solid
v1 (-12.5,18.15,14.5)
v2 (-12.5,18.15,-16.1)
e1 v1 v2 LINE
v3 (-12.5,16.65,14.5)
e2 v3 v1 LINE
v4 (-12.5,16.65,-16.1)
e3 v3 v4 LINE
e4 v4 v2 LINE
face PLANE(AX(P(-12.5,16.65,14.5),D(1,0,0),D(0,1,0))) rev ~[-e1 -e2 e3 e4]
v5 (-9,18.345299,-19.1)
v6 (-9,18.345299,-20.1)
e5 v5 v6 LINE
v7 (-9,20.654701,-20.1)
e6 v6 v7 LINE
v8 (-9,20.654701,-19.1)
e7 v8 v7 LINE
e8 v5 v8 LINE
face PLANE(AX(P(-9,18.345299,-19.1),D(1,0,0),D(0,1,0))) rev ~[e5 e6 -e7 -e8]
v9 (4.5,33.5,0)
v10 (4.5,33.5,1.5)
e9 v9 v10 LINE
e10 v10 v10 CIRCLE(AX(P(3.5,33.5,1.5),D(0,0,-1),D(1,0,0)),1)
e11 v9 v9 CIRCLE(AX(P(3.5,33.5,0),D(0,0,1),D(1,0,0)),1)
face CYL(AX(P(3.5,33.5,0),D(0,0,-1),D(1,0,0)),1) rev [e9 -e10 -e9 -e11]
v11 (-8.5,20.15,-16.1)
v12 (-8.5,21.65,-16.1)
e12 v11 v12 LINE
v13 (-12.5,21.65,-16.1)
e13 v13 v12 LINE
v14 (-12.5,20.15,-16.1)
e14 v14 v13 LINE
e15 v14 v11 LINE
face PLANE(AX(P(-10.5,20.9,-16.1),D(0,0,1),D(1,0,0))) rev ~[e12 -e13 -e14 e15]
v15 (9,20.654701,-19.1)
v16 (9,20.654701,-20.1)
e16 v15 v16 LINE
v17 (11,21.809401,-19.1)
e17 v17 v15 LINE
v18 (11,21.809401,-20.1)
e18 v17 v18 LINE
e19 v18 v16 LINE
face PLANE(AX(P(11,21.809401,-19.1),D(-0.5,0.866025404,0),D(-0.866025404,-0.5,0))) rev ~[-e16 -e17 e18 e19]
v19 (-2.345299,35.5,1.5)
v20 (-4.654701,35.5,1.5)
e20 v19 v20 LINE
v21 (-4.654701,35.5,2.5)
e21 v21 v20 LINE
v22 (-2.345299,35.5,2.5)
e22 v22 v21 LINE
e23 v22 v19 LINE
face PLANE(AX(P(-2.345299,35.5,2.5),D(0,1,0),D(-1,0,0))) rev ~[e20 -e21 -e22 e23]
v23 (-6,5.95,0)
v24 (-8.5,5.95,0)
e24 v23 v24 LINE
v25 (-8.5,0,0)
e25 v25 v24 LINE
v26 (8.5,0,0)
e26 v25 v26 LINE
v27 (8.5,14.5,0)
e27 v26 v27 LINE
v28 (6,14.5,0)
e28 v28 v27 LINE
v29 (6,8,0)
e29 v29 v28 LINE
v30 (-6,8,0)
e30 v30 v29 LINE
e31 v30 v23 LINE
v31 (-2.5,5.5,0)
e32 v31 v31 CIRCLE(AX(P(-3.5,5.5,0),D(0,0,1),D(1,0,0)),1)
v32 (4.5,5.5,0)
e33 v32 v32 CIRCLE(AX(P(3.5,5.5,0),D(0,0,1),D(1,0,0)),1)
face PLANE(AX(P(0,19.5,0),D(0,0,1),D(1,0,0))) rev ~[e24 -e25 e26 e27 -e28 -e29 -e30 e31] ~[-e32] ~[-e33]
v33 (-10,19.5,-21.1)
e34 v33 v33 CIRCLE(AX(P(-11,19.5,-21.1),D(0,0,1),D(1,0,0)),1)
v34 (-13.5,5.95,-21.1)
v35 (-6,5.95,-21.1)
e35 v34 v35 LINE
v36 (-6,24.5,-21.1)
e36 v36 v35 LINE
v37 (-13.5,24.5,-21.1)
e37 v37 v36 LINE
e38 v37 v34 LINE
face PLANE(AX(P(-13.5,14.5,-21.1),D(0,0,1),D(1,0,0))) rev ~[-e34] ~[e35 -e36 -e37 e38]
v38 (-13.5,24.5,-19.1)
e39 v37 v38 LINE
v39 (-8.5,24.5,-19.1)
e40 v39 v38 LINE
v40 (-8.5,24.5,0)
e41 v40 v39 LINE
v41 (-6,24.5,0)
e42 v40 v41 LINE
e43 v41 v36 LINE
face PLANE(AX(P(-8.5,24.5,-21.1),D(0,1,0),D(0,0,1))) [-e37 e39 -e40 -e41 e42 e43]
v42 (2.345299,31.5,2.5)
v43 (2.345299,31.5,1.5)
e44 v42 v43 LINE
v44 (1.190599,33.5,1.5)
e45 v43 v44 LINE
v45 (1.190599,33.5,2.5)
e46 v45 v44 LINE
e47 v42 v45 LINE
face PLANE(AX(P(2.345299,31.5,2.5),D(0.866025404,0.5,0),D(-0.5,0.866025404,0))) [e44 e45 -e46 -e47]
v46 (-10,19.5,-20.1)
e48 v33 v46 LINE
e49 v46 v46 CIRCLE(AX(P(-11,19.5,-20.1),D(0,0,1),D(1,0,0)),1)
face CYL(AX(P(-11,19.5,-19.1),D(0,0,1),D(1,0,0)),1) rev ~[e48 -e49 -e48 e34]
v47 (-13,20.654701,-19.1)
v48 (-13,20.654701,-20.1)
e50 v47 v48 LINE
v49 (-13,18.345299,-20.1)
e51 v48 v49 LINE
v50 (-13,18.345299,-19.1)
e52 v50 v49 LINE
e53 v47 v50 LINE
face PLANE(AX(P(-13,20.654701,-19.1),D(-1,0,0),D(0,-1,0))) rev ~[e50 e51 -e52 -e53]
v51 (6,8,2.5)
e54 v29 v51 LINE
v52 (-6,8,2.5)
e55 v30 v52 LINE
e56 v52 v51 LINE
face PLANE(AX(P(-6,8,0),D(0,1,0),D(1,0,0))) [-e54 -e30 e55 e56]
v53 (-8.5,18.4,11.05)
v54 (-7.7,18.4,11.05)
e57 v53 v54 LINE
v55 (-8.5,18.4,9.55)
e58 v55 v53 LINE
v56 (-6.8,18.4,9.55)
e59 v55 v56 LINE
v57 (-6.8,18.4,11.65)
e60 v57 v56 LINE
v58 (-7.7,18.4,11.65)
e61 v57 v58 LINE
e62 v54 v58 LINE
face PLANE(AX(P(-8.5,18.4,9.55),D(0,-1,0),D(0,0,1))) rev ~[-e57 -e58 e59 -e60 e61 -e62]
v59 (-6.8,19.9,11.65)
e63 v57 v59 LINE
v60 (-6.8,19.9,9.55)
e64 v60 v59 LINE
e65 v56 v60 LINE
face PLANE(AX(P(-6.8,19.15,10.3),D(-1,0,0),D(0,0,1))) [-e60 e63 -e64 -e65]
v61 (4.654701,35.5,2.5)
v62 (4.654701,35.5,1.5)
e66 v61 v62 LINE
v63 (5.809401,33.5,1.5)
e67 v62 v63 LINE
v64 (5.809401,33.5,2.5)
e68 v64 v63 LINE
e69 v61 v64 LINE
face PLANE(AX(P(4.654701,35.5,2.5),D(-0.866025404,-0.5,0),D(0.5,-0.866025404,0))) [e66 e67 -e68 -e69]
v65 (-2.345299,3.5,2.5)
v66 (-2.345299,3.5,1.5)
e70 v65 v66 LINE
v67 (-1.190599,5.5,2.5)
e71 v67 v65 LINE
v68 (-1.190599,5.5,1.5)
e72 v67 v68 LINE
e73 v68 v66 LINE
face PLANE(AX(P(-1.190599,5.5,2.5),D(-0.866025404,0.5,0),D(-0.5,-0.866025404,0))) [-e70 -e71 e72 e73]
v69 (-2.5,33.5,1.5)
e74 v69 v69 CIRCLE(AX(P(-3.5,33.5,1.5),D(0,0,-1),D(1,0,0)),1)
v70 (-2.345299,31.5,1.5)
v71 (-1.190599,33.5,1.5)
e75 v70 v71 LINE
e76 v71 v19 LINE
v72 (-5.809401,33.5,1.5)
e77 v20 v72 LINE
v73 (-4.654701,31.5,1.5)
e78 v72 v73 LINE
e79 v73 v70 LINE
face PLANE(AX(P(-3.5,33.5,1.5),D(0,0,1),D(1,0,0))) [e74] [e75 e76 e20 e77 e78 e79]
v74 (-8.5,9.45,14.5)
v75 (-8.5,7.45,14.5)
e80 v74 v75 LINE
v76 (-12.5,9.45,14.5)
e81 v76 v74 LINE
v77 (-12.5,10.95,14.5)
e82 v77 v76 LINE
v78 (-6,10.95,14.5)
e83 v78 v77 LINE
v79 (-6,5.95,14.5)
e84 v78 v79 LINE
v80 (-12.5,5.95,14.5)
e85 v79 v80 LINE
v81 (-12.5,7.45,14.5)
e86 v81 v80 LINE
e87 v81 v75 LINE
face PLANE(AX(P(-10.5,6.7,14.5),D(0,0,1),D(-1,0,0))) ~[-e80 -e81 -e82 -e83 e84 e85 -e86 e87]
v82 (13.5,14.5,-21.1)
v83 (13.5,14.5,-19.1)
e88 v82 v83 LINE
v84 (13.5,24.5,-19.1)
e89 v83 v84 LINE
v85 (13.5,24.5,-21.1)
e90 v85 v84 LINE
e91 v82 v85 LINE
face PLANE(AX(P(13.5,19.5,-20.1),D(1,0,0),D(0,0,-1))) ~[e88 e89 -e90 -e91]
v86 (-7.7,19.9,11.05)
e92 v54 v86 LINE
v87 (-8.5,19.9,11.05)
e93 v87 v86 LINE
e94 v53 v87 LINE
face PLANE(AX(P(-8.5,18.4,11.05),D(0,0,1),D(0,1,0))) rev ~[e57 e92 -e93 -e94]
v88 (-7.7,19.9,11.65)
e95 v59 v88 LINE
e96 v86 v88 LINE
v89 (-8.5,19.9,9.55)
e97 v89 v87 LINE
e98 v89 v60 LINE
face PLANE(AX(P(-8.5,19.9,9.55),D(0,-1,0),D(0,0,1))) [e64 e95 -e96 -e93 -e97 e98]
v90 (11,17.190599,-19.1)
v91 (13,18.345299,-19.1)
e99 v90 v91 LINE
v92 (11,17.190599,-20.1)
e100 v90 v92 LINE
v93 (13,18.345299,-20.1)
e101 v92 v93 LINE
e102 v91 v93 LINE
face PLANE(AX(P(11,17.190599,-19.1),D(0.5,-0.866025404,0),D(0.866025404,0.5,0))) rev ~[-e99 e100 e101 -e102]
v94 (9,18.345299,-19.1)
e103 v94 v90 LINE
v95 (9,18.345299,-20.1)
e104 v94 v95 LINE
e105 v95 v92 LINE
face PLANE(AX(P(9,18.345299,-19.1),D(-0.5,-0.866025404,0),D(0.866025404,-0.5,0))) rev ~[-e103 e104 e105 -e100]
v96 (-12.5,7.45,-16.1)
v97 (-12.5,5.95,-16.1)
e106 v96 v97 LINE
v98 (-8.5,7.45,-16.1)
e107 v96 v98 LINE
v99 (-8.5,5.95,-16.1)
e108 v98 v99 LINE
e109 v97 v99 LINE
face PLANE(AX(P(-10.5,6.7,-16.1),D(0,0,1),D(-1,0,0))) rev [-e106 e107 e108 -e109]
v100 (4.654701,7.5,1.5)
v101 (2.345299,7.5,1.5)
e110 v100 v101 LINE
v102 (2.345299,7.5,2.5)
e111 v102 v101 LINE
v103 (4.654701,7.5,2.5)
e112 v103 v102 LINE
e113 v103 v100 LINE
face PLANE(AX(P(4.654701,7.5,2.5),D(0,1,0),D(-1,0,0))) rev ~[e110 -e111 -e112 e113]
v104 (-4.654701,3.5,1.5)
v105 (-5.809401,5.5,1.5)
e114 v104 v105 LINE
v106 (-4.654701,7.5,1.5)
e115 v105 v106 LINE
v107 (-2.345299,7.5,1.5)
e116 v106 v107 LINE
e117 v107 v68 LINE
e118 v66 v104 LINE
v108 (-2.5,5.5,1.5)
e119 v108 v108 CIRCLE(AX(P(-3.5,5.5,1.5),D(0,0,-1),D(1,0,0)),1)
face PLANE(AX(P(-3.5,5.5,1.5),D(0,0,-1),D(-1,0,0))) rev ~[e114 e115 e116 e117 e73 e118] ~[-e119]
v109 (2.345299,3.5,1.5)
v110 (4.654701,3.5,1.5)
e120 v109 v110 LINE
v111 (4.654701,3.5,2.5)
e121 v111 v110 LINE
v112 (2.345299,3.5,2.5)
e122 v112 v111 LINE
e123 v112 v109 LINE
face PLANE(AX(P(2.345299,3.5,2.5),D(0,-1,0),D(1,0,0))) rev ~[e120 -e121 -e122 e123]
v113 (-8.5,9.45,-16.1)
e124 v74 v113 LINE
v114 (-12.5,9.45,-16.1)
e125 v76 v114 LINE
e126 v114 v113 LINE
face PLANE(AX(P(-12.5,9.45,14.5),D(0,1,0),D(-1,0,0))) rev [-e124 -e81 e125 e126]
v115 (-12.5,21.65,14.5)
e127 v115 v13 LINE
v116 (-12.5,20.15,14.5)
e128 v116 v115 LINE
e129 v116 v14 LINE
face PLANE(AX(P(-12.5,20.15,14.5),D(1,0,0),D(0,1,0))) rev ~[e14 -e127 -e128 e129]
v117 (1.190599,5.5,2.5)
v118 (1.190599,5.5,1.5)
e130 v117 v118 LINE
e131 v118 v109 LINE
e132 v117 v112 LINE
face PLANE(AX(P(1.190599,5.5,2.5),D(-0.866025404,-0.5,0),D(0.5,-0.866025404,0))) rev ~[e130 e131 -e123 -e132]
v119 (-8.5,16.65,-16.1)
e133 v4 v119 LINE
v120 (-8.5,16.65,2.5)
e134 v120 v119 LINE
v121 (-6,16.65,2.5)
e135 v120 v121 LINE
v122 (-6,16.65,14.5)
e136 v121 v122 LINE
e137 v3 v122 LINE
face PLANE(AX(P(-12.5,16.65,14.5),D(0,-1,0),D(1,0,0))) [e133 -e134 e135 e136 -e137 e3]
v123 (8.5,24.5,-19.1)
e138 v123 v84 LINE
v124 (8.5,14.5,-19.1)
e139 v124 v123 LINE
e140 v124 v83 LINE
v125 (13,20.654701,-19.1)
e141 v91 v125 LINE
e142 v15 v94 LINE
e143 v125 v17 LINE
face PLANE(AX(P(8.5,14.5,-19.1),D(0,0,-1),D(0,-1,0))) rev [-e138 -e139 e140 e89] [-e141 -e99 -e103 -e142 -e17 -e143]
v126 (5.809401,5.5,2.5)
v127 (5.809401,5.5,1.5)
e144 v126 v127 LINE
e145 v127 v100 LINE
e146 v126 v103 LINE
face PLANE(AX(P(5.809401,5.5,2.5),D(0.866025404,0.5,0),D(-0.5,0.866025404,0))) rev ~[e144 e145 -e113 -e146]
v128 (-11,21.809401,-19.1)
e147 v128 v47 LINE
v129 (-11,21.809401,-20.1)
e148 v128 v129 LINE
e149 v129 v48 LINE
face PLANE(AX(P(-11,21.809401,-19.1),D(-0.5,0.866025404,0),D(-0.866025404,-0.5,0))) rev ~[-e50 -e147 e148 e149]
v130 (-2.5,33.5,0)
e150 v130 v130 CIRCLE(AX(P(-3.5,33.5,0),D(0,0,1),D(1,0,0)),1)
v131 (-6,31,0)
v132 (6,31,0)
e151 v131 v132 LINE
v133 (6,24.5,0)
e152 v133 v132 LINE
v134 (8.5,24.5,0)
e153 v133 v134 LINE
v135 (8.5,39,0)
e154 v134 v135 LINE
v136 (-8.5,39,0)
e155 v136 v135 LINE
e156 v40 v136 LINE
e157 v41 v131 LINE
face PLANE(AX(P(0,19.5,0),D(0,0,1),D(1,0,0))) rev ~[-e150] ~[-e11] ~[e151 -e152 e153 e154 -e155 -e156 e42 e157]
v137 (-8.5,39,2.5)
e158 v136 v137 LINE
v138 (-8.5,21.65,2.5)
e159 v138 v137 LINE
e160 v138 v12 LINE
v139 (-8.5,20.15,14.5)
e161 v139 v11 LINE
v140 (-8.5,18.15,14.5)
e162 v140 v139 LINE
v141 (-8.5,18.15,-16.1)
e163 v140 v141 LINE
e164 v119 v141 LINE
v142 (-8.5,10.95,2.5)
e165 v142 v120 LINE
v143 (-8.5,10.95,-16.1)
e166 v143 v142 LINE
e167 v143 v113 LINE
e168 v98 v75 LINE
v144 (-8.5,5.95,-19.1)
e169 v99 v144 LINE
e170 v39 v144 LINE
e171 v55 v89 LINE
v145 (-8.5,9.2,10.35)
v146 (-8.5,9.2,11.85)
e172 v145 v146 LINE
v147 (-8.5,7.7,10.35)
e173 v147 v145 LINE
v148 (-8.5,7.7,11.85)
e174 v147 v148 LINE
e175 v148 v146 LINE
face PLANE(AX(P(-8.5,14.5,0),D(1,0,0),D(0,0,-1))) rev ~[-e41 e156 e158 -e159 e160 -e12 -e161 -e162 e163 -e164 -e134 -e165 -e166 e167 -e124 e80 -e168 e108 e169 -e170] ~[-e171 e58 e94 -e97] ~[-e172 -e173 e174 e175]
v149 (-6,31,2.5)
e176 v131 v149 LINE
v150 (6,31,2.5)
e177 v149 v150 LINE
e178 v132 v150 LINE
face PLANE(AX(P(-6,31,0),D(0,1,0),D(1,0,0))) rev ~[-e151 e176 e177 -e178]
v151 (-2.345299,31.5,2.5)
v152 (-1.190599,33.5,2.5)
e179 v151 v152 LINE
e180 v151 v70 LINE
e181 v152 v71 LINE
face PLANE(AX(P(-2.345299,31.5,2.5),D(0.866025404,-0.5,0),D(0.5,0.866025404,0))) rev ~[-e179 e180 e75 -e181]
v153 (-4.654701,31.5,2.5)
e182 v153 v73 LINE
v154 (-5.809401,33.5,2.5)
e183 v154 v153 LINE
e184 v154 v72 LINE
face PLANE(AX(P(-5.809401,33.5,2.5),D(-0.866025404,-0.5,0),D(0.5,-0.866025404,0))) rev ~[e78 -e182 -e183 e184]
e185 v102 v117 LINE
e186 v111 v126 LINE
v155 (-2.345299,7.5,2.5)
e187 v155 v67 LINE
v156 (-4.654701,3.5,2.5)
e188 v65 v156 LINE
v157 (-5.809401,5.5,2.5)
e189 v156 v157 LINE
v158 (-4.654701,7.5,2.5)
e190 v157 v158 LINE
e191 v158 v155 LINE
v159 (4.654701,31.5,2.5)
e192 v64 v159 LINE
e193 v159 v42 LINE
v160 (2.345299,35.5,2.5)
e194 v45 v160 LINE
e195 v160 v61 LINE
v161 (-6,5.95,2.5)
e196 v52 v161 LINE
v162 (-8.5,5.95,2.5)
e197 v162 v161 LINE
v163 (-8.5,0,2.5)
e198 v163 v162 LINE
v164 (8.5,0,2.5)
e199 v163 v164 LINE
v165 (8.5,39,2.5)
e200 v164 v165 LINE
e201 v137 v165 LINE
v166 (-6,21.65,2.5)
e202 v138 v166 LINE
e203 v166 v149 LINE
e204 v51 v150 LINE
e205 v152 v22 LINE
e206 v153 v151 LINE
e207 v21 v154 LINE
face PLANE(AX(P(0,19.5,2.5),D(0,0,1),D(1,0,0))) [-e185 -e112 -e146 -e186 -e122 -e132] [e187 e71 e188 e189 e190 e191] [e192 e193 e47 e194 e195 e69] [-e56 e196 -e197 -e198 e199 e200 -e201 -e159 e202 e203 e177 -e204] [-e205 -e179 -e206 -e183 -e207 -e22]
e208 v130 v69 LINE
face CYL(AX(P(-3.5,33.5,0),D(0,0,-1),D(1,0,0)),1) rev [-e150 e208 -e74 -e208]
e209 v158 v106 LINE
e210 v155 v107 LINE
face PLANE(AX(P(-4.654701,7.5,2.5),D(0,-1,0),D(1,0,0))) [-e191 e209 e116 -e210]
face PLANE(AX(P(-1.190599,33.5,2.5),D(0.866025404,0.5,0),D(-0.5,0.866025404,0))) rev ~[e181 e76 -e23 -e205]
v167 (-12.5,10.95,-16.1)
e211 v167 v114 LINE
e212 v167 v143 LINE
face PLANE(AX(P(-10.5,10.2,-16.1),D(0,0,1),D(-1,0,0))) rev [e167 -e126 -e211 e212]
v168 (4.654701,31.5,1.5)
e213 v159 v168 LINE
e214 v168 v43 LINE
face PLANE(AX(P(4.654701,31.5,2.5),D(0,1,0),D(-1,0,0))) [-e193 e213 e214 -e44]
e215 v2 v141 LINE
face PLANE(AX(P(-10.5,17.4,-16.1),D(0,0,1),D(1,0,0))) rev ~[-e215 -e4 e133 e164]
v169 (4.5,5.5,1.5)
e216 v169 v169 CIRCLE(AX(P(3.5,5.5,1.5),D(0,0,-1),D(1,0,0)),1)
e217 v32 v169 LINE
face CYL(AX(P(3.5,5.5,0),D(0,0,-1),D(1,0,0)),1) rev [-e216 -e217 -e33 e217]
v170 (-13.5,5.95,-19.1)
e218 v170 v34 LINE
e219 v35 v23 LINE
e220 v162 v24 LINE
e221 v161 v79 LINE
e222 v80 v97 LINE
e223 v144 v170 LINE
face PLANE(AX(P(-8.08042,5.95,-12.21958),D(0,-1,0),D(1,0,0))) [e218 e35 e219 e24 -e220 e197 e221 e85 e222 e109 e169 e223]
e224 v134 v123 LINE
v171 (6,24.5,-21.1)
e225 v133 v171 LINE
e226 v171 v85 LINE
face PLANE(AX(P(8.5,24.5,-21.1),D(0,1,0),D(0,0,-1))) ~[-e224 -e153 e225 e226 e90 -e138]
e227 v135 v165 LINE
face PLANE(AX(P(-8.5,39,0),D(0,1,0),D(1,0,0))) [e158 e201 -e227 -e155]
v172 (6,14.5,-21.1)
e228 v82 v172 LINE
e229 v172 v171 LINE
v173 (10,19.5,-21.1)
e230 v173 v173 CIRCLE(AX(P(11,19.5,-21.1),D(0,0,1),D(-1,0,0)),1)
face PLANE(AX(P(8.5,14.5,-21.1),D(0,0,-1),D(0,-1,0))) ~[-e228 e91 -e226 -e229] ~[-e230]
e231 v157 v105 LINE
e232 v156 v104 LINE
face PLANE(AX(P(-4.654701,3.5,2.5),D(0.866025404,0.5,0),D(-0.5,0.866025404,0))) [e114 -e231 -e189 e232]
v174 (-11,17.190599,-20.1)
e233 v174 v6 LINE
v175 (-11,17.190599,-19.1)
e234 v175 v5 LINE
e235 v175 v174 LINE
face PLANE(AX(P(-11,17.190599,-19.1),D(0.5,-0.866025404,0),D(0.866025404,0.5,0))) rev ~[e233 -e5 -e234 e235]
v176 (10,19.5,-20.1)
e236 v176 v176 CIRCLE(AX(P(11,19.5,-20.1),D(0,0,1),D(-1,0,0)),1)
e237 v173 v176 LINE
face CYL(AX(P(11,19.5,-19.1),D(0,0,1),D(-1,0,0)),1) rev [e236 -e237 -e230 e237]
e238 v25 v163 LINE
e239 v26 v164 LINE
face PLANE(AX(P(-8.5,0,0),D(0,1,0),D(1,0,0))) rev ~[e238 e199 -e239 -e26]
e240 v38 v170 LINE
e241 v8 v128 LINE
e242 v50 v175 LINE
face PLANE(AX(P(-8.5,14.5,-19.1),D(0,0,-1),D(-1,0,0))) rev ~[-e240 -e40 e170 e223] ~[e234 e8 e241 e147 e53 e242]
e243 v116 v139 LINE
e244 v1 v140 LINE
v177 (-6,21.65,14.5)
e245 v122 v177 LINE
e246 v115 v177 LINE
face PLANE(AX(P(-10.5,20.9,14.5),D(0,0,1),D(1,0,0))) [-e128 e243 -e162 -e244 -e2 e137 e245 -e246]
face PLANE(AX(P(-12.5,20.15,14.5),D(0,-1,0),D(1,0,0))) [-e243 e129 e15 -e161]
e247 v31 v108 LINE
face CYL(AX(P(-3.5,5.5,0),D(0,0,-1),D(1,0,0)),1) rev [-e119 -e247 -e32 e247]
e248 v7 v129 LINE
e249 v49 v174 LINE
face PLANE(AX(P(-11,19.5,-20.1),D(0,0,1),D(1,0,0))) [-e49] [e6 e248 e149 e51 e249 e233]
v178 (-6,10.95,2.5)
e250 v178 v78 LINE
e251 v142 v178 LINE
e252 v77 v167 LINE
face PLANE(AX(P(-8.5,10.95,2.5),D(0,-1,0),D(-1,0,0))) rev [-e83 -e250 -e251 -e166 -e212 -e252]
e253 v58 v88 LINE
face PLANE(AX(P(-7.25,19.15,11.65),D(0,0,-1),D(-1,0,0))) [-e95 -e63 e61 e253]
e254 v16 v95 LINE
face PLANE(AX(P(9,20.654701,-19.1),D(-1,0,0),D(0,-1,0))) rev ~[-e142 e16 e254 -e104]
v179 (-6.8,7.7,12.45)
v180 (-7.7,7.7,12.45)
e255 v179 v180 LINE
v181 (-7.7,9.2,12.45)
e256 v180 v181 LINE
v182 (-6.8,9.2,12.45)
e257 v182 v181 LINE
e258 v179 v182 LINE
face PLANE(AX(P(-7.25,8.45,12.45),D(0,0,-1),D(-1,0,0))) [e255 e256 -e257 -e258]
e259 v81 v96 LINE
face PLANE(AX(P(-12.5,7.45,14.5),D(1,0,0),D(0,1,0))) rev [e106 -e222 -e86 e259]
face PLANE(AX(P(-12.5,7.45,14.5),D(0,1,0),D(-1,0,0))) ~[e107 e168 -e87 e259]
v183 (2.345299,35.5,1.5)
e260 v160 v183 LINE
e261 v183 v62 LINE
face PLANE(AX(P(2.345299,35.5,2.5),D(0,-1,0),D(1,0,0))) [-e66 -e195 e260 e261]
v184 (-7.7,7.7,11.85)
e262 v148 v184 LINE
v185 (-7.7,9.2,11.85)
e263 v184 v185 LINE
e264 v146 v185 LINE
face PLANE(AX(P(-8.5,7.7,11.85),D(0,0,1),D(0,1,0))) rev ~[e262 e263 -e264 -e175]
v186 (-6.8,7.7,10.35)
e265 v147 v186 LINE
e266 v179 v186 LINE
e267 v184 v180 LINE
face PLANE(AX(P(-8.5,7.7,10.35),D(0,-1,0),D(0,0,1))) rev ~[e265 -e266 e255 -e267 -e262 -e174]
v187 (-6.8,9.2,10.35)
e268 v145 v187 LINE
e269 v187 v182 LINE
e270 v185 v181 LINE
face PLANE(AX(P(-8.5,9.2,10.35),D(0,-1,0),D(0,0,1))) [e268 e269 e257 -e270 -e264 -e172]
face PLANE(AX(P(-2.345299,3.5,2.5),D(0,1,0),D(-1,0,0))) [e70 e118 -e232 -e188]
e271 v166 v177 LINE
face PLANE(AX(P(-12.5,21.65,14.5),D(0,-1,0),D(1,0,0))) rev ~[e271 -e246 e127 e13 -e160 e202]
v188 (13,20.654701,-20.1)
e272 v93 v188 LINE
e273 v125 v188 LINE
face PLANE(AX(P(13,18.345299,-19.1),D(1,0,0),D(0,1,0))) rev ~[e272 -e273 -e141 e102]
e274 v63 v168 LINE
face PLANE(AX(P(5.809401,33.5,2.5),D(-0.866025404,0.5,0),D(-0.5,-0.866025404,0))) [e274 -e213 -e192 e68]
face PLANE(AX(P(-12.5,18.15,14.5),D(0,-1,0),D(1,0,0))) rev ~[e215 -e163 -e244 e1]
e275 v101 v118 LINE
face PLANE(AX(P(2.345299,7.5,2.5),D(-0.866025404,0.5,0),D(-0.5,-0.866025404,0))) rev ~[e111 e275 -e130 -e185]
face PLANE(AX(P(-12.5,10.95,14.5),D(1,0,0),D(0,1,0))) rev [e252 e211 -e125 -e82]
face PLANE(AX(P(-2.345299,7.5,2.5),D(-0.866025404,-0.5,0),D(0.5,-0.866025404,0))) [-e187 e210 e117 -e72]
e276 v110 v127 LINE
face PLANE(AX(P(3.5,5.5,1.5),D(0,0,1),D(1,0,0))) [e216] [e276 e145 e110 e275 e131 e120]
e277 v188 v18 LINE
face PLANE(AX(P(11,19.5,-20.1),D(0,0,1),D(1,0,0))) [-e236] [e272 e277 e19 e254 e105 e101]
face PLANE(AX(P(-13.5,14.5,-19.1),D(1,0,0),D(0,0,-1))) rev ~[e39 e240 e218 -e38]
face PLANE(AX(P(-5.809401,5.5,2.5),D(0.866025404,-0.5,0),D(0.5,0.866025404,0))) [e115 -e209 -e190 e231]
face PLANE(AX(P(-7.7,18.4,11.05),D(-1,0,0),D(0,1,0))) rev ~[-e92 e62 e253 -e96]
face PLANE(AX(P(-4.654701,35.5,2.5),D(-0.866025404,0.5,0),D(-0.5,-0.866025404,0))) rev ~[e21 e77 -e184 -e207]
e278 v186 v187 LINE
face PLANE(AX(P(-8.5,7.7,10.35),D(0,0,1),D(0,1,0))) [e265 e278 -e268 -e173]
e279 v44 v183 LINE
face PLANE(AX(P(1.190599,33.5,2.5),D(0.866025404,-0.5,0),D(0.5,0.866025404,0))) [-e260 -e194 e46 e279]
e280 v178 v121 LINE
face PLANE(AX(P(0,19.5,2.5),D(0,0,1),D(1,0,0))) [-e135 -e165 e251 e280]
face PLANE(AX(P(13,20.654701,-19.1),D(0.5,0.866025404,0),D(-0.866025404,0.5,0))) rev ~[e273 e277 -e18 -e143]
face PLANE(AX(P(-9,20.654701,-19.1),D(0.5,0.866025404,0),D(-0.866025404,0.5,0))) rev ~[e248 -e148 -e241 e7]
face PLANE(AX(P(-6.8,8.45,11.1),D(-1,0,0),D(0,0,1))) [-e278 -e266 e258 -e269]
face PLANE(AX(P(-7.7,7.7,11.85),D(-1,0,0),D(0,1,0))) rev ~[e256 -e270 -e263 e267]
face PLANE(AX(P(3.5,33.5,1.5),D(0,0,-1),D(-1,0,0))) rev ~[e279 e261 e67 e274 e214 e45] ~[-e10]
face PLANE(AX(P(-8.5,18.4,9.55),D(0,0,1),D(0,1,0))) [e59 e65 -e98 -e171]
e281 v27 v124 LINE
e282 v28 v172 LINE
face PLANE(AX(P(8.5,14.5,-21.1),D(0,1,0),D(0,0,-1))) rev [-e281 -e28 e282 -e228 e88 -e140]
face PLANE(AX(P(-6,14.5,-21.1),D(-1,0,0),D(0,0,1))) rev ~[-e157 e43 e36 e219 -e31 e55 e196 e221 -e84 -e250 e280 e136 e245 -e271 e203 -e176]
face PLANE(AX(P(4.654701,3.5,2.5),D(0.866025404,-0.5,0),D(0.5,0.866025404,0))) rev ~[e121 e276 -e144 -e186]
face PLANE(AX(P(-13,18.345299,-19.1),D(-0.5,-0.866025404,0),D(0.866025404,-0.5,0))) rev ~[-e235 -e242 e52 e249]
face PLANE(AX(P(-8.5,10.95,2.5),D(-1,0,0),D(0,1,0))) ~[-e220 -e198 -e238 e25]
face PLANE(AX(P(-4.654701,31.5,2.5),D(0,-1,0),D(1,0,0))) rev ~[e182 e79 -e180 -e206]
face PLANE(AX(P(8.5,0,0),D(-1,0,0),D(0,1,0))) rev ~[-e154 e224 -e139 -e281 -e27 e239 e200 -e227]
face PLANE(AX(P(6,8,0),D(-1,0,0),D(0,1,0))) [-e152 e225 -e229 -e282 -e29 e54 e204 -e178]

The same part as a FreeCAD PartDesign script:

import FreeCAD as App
import Part
import Sketcher
from FreeCAD import Vector
Q = App.Units.Quantity

doc = App.newDocument("Part")
body = doc.addObject("PartDesign::Body", "Body")

sketch1 = body.newObject("Sketcher::SketchObject", "Sketch")
sketch1.AttachmentSupport = (doc.getObject("XY_Plane"), [""])
sketch1.MapMode = "FlatFace"
sketch1.addGeometry([
    Part.LineSegment(Vector(-8.5, 39, 0), Vector(-8.5, 0, 0)),
    Part.LineSegment(Vector(-8.5, 0, 0), Vector(8.5, 0, 0)),
    Part.LineSegment(Vector(8.5, 0, 0), Vector(8.5, 39, 0)),
    Part.LineSegment(Vector(8.5, 39, 0), Vector(-8.5, 39, 0)),
    Part.Circle(Vector(-3.5, 5.5, 0), Vector(0, 0, 1), 1),
    Part.Circle(Vector(3.5, 5.5, 0), Vector(0, 0, 1), 1),
    Part.Circle(Vector(-3.5, 33.5, 0), Vector(0, 0, 1), 1),
    Part.LineSegment(Vector(6, 8, 0), Vector(-6, 8, 0)),
    Part.LineSegment(Vector(-6, 8, 0), Vector(-6, 31, 0)),
    Part.LineSegment(Vector(-6, 31, 0), Vector(6, 31, 0)),
    Part.LineSegment(Vector(6, 31, 0), Vector(6, 8, 0)),
    Part.Circle(Vector(3.5, 33.5, 0), Vector(0, 0, 1), 1),
], False)
sketch1.addConstraint([
    Sketcher.Constraint("Coincident", 0, 2, 1, 1),
    Sketcher.Constraint("Coincident", 1, 2, 2, 1),
    Sketcher.Constraint("Coincident", 2, 2, 3, 1),
    Sketcher.Constraint("Coincident", 3, 2, 0, 1),
    Sketcher.Constraint("Coincident", 7, 2, 8, 1),
    Sketcher.Constraint("Coincident", 8, 2, 9, 1),
    Sketcher.Constraint("Coincident", 9, 2, 10, 1),
    Sketcher.Constraint("Coincident", 10, 2, 7, 1),
    Sketcher.Constraint("Vertical", 0),
    Sketcher.Constraint("Horizontal", 1),
    Sketcher.Constraint("Vertical", 2),
    Sketcher.Constraint("Horizontal", 3),
    Sketcher.Constraint("Horizontal", 7),
    Sketcher.Constraint("Vertical", 8),
    Sketcher.Constraint("Horizontal", 9),
    Sketcher.Constraint("Vertical", 10),
    Sketcher.Constraint("Equal", 4, 5),
    Sketcher.Constraint("Equal", 5, 6),
    Sketcher.Constraint("Equal", 6, 11),
    Sketcher.Constraint("Symmetric", 0, 2, 1, 2, -1, 1),
    Sketcher.Constraint("Symmetric", 4, 3, 5, 3, -2),
    Sketcher.Constraint("Symmetric", 6, 3, 11, 3, -2),
    Sketcher.Constraint("Vertical", 4, 3, 6, 3),
    Sketcher.Constraint("Diameter", 4, Q("2 mm")),
    Sketcher.Constraint("DistanceX", 1, 1, 1, 2, Q("17 mm")),
    Sketcher.Constraint("DistanceX", 7, 2, 7, 1, Q("12 mm")),
    Sketcher.Constraint("DistanceY", 0, 2, 0, 1, Q("39 mm")),
    Sketcher.Constraint("DistanceY", 8, 1, 8, 2, Q("23 mm")),
    Sketcher.Constraint("DistanceX", 7, 2, -1, 1, Q("6 mm")),
    Sketcher.Constraint("DistanceY", -1, 1, 7, 2, Q("8 mm")),
    Sketcher.Constraint("DistanceX", 4, 3, 5, 3, Q("7 mm")),
    Sketcher.Constraint("DistanceY", 4, 3, 6, 3, Q("28 mm")),
    Sketcher.Constraint("DistanceY", -1, 1, 4, 3, Q("5.5 mm")),
])
pad1 = body.newObject("PartDesign::Pad", "Pad")
pad1.Profile = sketch1
pad1.Length = 2.5

sketch2 = body.newObject("Sketcher::SketchObject", "Sketch001")
sketch2.AttachmentSupport = (doc.getObject("XY_Plane"), [""])
sketch2.MapMode = "FlatFace"
sketch2.addGeometry([
    Part.LineSegment(Vector(-8.5, 24.5, 0), Vector(-8.5, 14.5, 0)),
    Part.LineSegment(Vector(-8.5, 14.5, 0), Vector(-6, 14.5, 0)),
    Part.LineSegment(Vector(-6, 14.5, 0), Vector(-6, 24.5, 0)),
    Part.LineSegment(Vector(-6, 24.5, 0), Vector(-8.5, 24.5, 0)),
    Part.LineSegment(Vector(6, 24.5, 0), Vector(6, 14.5, 0)),
    Part.LineSegment(Vector(6, 14.5, 0), Vector(8.5, 14.5, 0)),
    Part.LineSegment(Vector(8.5, 14.5, 0), Vector(8.5, 24.5, 0)),
    Part.LineSegment(Vector(8.5, 24.5, 0), Vector(6, 24.5, 0)),
], False)
sketch2.addConstraint([
    Sketcher.Constraint("Coincident", 0, 2, 1, 1),
    Sketcher.Constraint("Coincident", 1, 2, 2, 1),
    Sketcher.Constraint("Coincident", 2, 2, 3, 1),
    Sketcher.Constraint("Coincident", 3, 2, 0, 1),
    Sketcher.Constraint("Coincident", 4, 2, 5, 1),
    Sketcher.Constraint("Coincident", 5, 2, 6, 1),
    Sketcher.Constraint("Coincident", 6, 2, 7, 1),
    Sketcher.Constraint("Coincident", 7, 2, 4, 1),
    Sketcher.Constraint("Vertical", 0),
    Sketcher.Constraint("Horizontal", 1),
    Sketcher.Constraint("Vertical", 2),
    Sketcher.Constraint("Horizontal", 3),
    Sketcher.Constraint("Vertical", 4),
    Sketcher.Constraint("Horizontal", 5),
    Sketcher.Constraint("Vertical", 6),
    Sketcher.Constraint("Horizontal", 7),
    Sketcher.Constraint("Symmetric", 1, 2, 4, 2, -2),
    Sketcher.Constraint("Symmetric", 3, 2, 6, 2, -2),
    Sketcher.Constraint("DistanceY", 0, 2, 0, 1, Q("10 mm")),
    Sketcher.Constraint("DistanceX", 1, 1, 1, 2, Q("2.5 mm")),
    Sketcher.Constraint("DistanceX", 1, 2, -1, 1, Q("6 mm")),
    Sketcher.Constraint("DistanceY", -1, 1, 0, 2, Q("14.5 mm")),
])
pad2 = body.newObject("PartDesign::Pad", "Pad001")
pad2.Profile = sketch2
pad2.Length = 21.1
pad2.Reversed = True

sketch3 = body.newObject("Sketcher::SketchObject", "Sketch002")
sketch3.AttachmentSupport = (doc.getObject("YZ_Plane"), [""])
sketch3.MapMode = "FlatFace"
sketch3.AttachmentOffset = App.Placement(Vector(0, 0, -8.5), App.Rotation())
sketch3.addGeometry([
    Part.LineSegment(Vector(24.5, -21.1, 0), Vector(14.5, -21.1, 0)),
    Part.LineSegment(Vector(14.5, -21.1, 0), Vector(14.5, -19.1, 0)),
    Part.LineSegment(Vector(14.5, -19.1, 0), Vector(24.5, -19.1, 0)),
    Part.LineSegment(Vector(24.5, -19.1, 0), Vector(24.5, -21.1, 0)),
], False)
sketch3.addConstraint([
    Sketcher.Constraint("Coincident", 0, 2, 1, 1),
    Sketcher.Constraint("Coincident", 1, 2, 2, 1),
    Sketcher.Constraint("Coincident", 2, 2, 3, 1),
    Sketcher.Constraint("Coincident", 3, 2, 0, 1),
    Sketcher.Constraint("Horizontal", 0),
    Sketcher.Constraint("Vertical", 1),
    Sketcher.Constraint("Horizontal", 2),
    Sketcher.Constraint("Vertical", 3),
    Sketcher.Constraint("DistanceX", 0, 2, 0, 1, Q("10 mm")),
    Sketcher.Constraint("DistanceY", 1, 1, 1, 2, Q("2 mm")),
    Sketcher.Constraint("DistanceX", -1, 1, 0, 2, Q("14.5 mm")),
    Sketcher.Constraint("DistanceY", 0, 2, -1, 1, Q("21.1 mm")),
])
pad3 = body.newObject("PartDesign::Pad", "Pad002")
pad3.Profile = sketch3
pad3.Length = 5
pad3.Reversed = True

sketch4 = body.newObject("Sketcher::SketchObject", "Sketch003")
sketch4.AttachmentSupport = (doc.getObject("XY_Plane"), [""])
sketch4.MapMode = "FlatFace"
sketch4.AttachmentOffset = App.Placement(Vector(0, 0, -19.1), App.Rotation())
sketch4.addGeometry(Part.Circle(Vector(-11, 19.5, 0), Vector(0, 0, 1), 1), False)
sketch4.addConstraint([
    Sketcher.Constraint("Diameter", 0, Q("2 mm")),
    Sketcher.Constraint("DistanceX", 0, 3, -1, 1, Q("11 mm")),
    Sketcher.Constraint("DistanceY", -1, 1, 0, 3, Q("19.5 mm")),
])
pocket1 = body.newObject("PartDesign::Pocket", "Pocket")
pocket1.Profile = sketch4
pocket1.Length = 95.162439
pocket1.Midplane = True
doc.recompute()

mirrored = body.newObject("PartDesign::Mirrored", "Mirrored")
mirrored.Originals = [pad3, pocket1]
mirrored.MirrorPlane = (doc.getObject("YZ_Plane"), [""])
body.Tip = mirrored

sketch5 = body.newObject("Sketcher::SketchObject", "Sketch004")
sketch5.AttachmentSupport = (doc.getObject("XY_Plane"), [""])
sketch5.MapMode = "FlatFace"
sketch5.AttachmentOffset = App.Placement(Vector(0, 0, 2.5), App.Rotation())
sketch5.addGeometry([
    Part.LineSegment(Vector(-2.3, 7.5, 0), Vector(-4.7, 7.5, 0)),
    Part.LineSegment(Vector(-4.7, 7.5, 0), Vector(-5.8, 5.5, 0)),
    Part.LineSegment(Vector(-5.8, 5.5, 0), Vector(-4.7, 3.5, 0)),
    Part.LineSegment(Vector(-4.7, 3.5, 0), Vector(-2.3, 3.5, 0)),
    Part.LineSegment(Vector(-2.3, 3.5, 0), Vector(-1.2, 5.5, 0)),
    Part.LineSegment(Vector(-1.2, 5.5, 0), Vector(-2.3, 7.5, 0)),
    Part.LineSegment(Vector(-1.2, 33.5, 0), Vector(-2.3, 35.5, 0)),
    Part.LineSegment(Vector(-2.3, 35.5, 0), Vector(-4.7, 35.5, 0)),
    Part.LineSegment(Vector(-4.7, 35.5, 0), Vector(-5.8, 33.5, 0)),
    Part.LineSegment(Vector(-5.8, 33.5, 0), Vector(-4.7, 31.5, 0)),
    Part.LineSegment(Vector(-4.7, 31.5, 0), Vector(-2.3, 31.5, 0)),
    Part.LineSegment(Vector(-2.3, 31.5, 0), Vector(-1.2, 33.5, 0)),
    Part.LineSegment(Vector(1.2, 33.5, 0), Vector(2.3, 31.5, 0)),
    Part.LineSegment(Vector(2.3, 31.5, 0), Vector(4.7, 31.5, 0)),
    Part.LineSegment(Vector(4.7, 31.5, 0), Vector(5.8, 33.5, 0)),
    Part.LineSegment(Vector(5.8, 33.5, 0), Vector(4.7, 35.5, 0)),
    Part.LineSegment(Vector(4.7, 35.5, 0), Vector(2.3, 35.5, 0)),
    Part.LineSegment(Vector(2.3, 35.5, 0), Vector(1.2, 33.5, 0)),
    Part.LineSegment(Vector(4.7, 7.5, 0), Vector(2.3, 7.5, 0)),
    Part.LineSegment(Vector(2.3, 7.5, 0), Vector(1.2, 5.5, 0)),
    Part.LineSegment(Vector(1.2, 5.5, 0), Vector(2.3, 3.5, 0)),
    Part.LineSegment(Vector(2.3, 3.5, 0), Vector(4.7, 3.5, 0)),
    Part.LineSegment(Vector(4.7, 3.5, 0), Vector(5.8, 5.5, 0)),
    Part.LineSegment(Vector(5.8, 5.5, 0), Vector(4.7, 7.5, 0)),
], False)
sketch5.addConstraint([
    Sketcher.Constraint("Coincident", 0, 2, 1, 1),
    Sketcher.Constraint("Coincident", 1, 2, 2, 1),
    Sketcher.Constraint("Coincident", 2, 2, 3, 1),
    Sketcher.Constraint("Coincident", 3, 2, 4, 1),
    Sketcher.Constraint("Coincident", 4, 2, 5, 1),
    Sketcher.Constraint("Coincident", 5, 2, 0, 1),
    Sketcher.Constraint("Coincident", 6, 2, 7, 1),
    Sketcher.Constraint("Coincident", 7, 2, 8, 1),
    Sketcher.Constraint("Coincident", 8, 2, 9, 1),
    Sketcher.Constraint("Coincident", 9, 2, 10, 1),
    Sketcher.Constraint("Coincident", 10, 2, 11, 1),
    Sketcher.Constraint("Coincident", 11, 2, 6, 1),
    Sketcher.Constraint("Coincident", 12, 2, 13, 1),
    Sketcher.Constraint("Coincident", 13, 2, 14, 1),
    Sketcher.Constraint("Coincident", 14, 2, 15, 1),
    Sketcher.Constraint("Coincident", 15, 2, 16, 1),
    Sketcher.Constraint("Coincident", 16, 2, 17, 1),
    Sketcher.Constraint("Coincident", 17, 2, 12, 1),
    Sketcher.Constraint("Coincident", 18, 2, 19, 1),
    Sketcher.Constraint("Coincident", 19, 2, 20, 1),
    Sketcher.Constraint("Coincident", 20, 2, 21, 1),
    Sketcher.Constraint("Coincident", 21, 2, 22, 1),
    Sketcher.Constraint("Coincident", 22, 2, 23, 1),
    Sketcher.Constraint("Coincident", 23, 2, 18, 1),
    Sketcher.Constraint("Horizontal", 0),
    Sketcher.Constraint("Horizontal", 3),
    Sketcher.Constraint("Horizontal", 7),
    Sketcher.Constraint("Horizontal", 10),
    Sketcher.Constraint("Horizontal", 13),
    Sketcher.Constraint("Horizontal", 16),
    Sketcher.Constraint("Horizontal", 18),
    Sketcher.Constraint("Horizontal", 21),
    Sketcher.Constraint("Symmetric", 10, 2, 12, 2, -2),
    Sketcher.Constraint("Symmetric", 8, 2, 14, 2, -2),
    Sketcher.Constraint("Symmetric", 7, 2, 15, 2, -2),
    Sketcher.Constraint("Symmetric", 11, 2, 17, 2, -2),
    Sketcher.Constraint("Symmetric", 5, 2, 18, 2, -2),
    Sketcher.Constraint("Symmetric", 4, 2, 19, 2, -2),
    Sketcher.Constraint("Symmetric", 3, 2, 20, 2, -2),
    Sketcher.Constraint("Symmetric", 1, 2, 22, 2, -2),
    Sketcher.Constraint("Parallel", 1, 4),
    Sketcher.Constraint("Parallel", 2, 5),
    Sketcher.Constraint("Parallel", 5, 6),
    Sketcher.Constraint("Parallel", 4, 8),
    Sketcher.Constraint("Parallel", 6, 9),
    Sketcher.Constraint("Parallel", 8, 11),
    Sketcher.Constraint("Parallel", 9, 12),
    Sketcher.Constraint("Parallel", 11, 14),
    Sketcher.Constraint("Parallel", 14, 17),
    Sketcher.Constraint("Parallel", 19, 22),
    Sketcher.Constraint("Parallel", 20, 23),
    Sketcher.Constraint("Horizontal", 1, 2, 4, 2),
    Sketcher.Constraint("Horizontal", 8, 2, 11, 2),
    Sketcher.Constraint("Vertical", 0, 2, 2, 2),
    Sketcher.Constraint("Vertical", 5, 2, 6, 2),
    Sketcher.Constraint("Vertical", 2, 2, 7, 2),
    Sketcher.Constraint("Vertical", 1, 2, 8, 2),
    Sketcher.Constraint("Vertical", 7, 2, 9, 2),
    Sketcher.Constraint("Angle", 1, Q("-120 deg")),
    Sketcher.Constraint("DistanceY", 1, 2, 0, 2, Q("2 mm")),
    Sketcher.Constraint("DistanceY", 5, 2, 6, 2, Q("28 mm")),
    Sketcher.Constraint("DistanceX", 9, 2, 12, 2, Q("7 mm")),
    Sketcher.Constraint("DistanceY", -1, 1, 0, 2, Q("7.5 mm")),
    Sketcher.Constraint("DistanceX", 0, 2, 0, 1, Q("2.309401 mm")),
])
pocket2 = body.newObject("PartDesign::Pocket", "Pocket001")
pocket2.Profile = sketch5
pocket2.Length = 1

sketch6 = body.newObject("Sketcher::SketchObject", "Sketch005")
sketch6.AttachmentSupport = (doc.getObject("XY_Plane"), [""])
sketch6.MapMode = "FlatFace"
sketch6.AttachmentOffset = App.Placement(Vector(0, 0, -19.1), App.Rotation())
sketch6.addGeometry([
    Part.LineSegment(Vector(-11, 21.8, 0), Vector(-13, 20.7, 0)),
    Part.LineSegment(Vector(-13, 20.7, 0), Vector(-13, 18.3, 0)),
    Part.LineSegment(Vector(-13, 18.3, 0), Vector(-11, 17.2, 0)),
    Part.LineSegment(Vector(-11, 17.2, 0), Vector(-9, 18.3, 0)),
    Part.LineSegment(Vector(-9, 18.3, 0), Vector(-9, 20.7, 0)),
    Part.LineSegment(Vector(-9, 20.7, 0), Vector(-11, 21.8, 0)),
    Part.LineSegment(Vector(11, 21.8, 0), Vector(9, 20.7, 0)),
    Part.LineSegment(Vector(9, 20.7, 0), Vector(9, 18.3, 0)),
    Part.LineSegment(Vector(9, 18.3, 0), Vector(11, 17.2, 0)),
    Part.LineSegment(Vector(11, 17.2, 0), Vector(13, 18.3, 0)),
    Part.LineSegment(Vector(13, 18.3, 0), Vector(13, 20.7, 0)),
    Part.LineSegment(Vector(13, 20.7, 0), Vector(11, 21.8, 0)),
], False)
sketch6.addConstraint([
    Sketcher.Constraint("Coincident", 0, 2, 1, 1),
    Sketcher.Constraint("Coincident", 1, 2, 2, 1),
    Sketcher.Constraint("Coincident", 2, 2, 3, 1),
    Sketcher.Constraint("Coincident", 3, 2, 4, 1),
    Sketcher.Constraint("Coincident", 4, 2, 5, 1),
    Sketcher.Constraint("Coincident", 5, 2, 0, 1),
    Sketcher.Constraint("Coincident", 6, 2, 7, 1),
    Sketcher.Constraint("Coincident", 7, 2, 8, 1),
    Sketcher.Constraint("Coincident", 8, 2, 9, 1),
    Sketcher.Constraint("Coincident", 9, 2, 10, 1),
    Sketcher.Constraint("Coincident", 10, 2, 11, 1),
    Sketcher.Constraint("Coincident", 11, 2, 6, 1),
    Sketcher.Constraint("Vertical", 1),
    Sketcher.Constraint("Vertical", 4),
    Sketcher.Constraint("Vertical", 7),
    Sketcher.Constraint("Vertical", 10),
    Sketcher.Constraint("Symmetric", 4, 2, 6, 2, -2),
    Sketcher.Constraint("Symmetric", 2, 2, 8, 2, -2),
    Sketcher.Constraint("Symmetric", 1, 2, 9, 2, -2),
    Sketcher.Constraint("Symmetric", 5, 2, 11, 2, -2),
    Sketcher.Constraint("Parallel", 0, 3),
    Sketcher.Constraint("Parallel", 2, 5),
    Sketcher.Constraint("Parallel", 3, 6),
    Sketcher.Constraint("Parallel", 5, 8),
    Sketcher.Constraint("Parallel", 8, 11),
    Sketcher.Constraint("Horizontal", 1, 2, 3, 2),
    Sketcher.Constraint("Horizontal", 0, 2, 4, 2),
    Sketcher.Constraint("Angle", 0, Q("-150 deg")),
    Sketcher.Constraint("DistanceX", 0, 2, -1, 1, Q("13 mm")),
    Sketcher.Constraint("DistanceX", 2, 2, -1, 1, Q("11 mm")),
    Sketcher.Constraint("DistanceY", 1, 2, 1, 1, Q("2.309401 mm")),
    Sketcher.Constraint("DistanceY", -1, 1, 0, 2, Q("20.654701 mm")),
])
pocket3 = body.newObject("PartDesign::Pocket", "Pocket002")
pocket3.Profile = sketch6
pocket3.Length = 1

sketch7 = body.newObject("Sketcher::SketchObject", "Sketch006")
sketch7.AttachmentSupport = (doc.getObject("XY_Plane"), [""])
sketch7.MapMode = "FlatFace"
sketch7.AttachmentOffset = App.Placement(Vector(0, 0, 2.5), App.Rotation())
sketch7.addGeometry([
    Part.LineSegment(Vector(-8.5, 21.6, 0), Vector(-8.5, 16.6, 0)),
    Part.LineSegment(Vector(-8.5, 16.6, 0), Vector(-6, 16.6, 0)),
    Part.LineSegment(Vector(-6, 16.6, 0), Vector(-6, 21.6, 0)),
    Part.LineSegment(Vector(-6, 21.6, 0), Vector(-8.5, 21.6, 0)),
], False)
sketch7.addConstraint([
    Sketcher.Constraint("Coincident", 0, 2, 1, 1),
    Sketcher.Constraint("Coincident", 1, 2, 2, 1),
    Sketcher.Constraint("Coincident", 2, 2, 3, 1),
    Sketcher.Constraint("Coincident", 3, 2, 0, 1),
    Sketcher.Constraint("Vertical", 0),
    Sketcher.Constraint("Horizontal", 1),
    Sketcher.Constraint("Vertical", 2),
    Sketcher.Constraint("Horizontal", 3),
    Sketcher.Constraint("DistanceY", 0, 2, 0, 1, Q("5 mm")),
    Sketcher.Constraint("DistanceX", 1, 1, 1, 2, Q("2.5 mm")),
    Sketcher.Constraint("DistanceX", 1, 2, -1, 1, Q("6 mm")),
    Sketcher.Constraint("DistanceY", -1, 1, 0, 2, Q("16.65 mm")),
])
pad4 = body.newObject("PartDesign::Pad", "Pad003")
pad4.Profile = sketch7
pad4.Length = 12

sketch8 = body.newObject("Sketcher::SketchObject", "Sketch007")
sketch8.AttachmentSupport = (doc.getObject("XY_Plane"), [""])
sketch8.MapMode = "FlatFace"
sketch8.AttachmentOffset = App.Placement(Vector(0, 0, 14.5), App.Rotation())
sketch8.addGeometry([
    Part.LineSegment(Vector(-12.5, 21.6, 0), Vector(-12.5, 20.1, 0)),
    Part.LineSegment(Vector(-12.5, 20.1, 0), Vector(-8.5, 20.1, 0)),
    Part.LineSegment(Vector(-8.5, 20.1, 0), Vector(-8.5, 21.6, 0)),
    Part.LineSegment(Vector(-8.5, 21.6, 0), Vector(-12.5, 21.6, 0)),
    Part.LineSegment(Vector(-12.5, 18.1, 0), Vector(-12.5, 16.6, 0)),
    Part.LineSegment(Vector(-12.5, 16.6, 0), Vector(-8.5, 16.6, 0)),
    Part.LineSegment(Vector(-8.5, 16.6, 0), Vector(-8.5, 18.1, 0)),
    Part.LineSegment(Vector(-8.5, 18.1, 0), Vector(-12.5, 18.1, 0)),
], False)
sketch8.addConstraint([
    Sketcher.Constraint("Coincident", 0, 2, 1, 1),
    Sketcher.Constraint("Coincident", 1, 2, 2, 1),
    Sketcher.Constraint("Coincident", 2, 2, 3, 1),
    Sketcher.Constraint("Coincident", 3, 2, 0, 1),
    Sketcher.Constraint("Coincident", 4, 2, 5, 1),
    Sketcher.Constraint("Coincident", 5, 2, 6, 1),
    Sketcher.Constraint("Coincident", 6, 2, 7, 1),
    Sketcher.Constraint("Coincident", 7, 2, 4, 1),
    Sketcher.Constraint("Vertical", 0),
    Sketcher.Constraint("Horizontal", 1),
    Sketcher.Constraint("Vertical", 2),
    Sketcher.Constraint("Horizontal", 3),
    Sketcher.Constraint("Vertical", 4),
    Sketcher.Constraint("Horizontal", 5),
    Sketcher.Constraint("Vertical", 6),
    Sketcher.Constraint("Horizontal", 7),
    Sketcher.Constraint("Vertical", 3, 2, 4, 2),
    Sketcher.Constraint("Vertical", 2, 2, 5, 2),
    Sketcher.Constraint("Equal", 2, 4),
    Sketcher.Constraint("DistanceX", 1, 1, 1, 2, Q("4 mm")),
    Sketcher.Constraint("DistanceY", 0, 2, 0, 1, Q("1.5 mm")),
    Sketcher.Constraint("DistanceY", 4, 2, 3, 2, Q("5 mm")),
    Sketcher.Constraint("DistanceX", 0, 2, -1, 1, Q("12.5 mm")),
    Sketcher.Constraint("DistanceY", -1, 1, 0, 2, Q("20.15 mm")),
])
pad5 = body.newObject("PartDesign::Pad", "Pad004")
pad5.Profile = sketch8
pad5.Length = 30.6
pad5.Reversed = True
doc.recompute()

datumplane = body.newObject("PartDesign::Plane", "DatumPlane")
datumplane.AttachmentSupport = (doc.getObject("XZ_Plane"), [""])
datumplane.MapMode = "FlatFace"
datumplane.AttachmentOffset = App.Placement(Vector(0, 0, -13.8), App.Rotation())
mirrored2 = body.newObject("PartDesign::Mirrored", "Mirrored001")
mirrored2.Originals = [pad4, pad5]
mirrored2.MirrorPlane = (datumplane, [""])
body.Tip = mirrored2

sketch9 = body.newObject("Sketcher::SketchObject", "Sketch008")
sketch9.AttachmentSupport = (doc.getObject("YZ_Plane"), [""])
sketch9.MapMode = "FlatFace"
sketch9.AttachmentOffset = App.Placement(Vector(0, 0, -8.5), App.Rotation())
sketch9.addGeometry([
    Part.LineSegment(Vector(19.9, 9.6, 0), Vector(18.4, 9.6, 0)),
    Part.LineSegment(Vector(18.4, 9.6, 0), Vector(18.4, 11.1, 0)),
    Part.LineSegment(Vector(18.4, 11.1, 0), Vector(19.9, 11.1, 0)),
    Part.LineSegment(Vector(19.9, 11.1, 0), Vector(19.9, 9.6, 0)),
    Part.LineSegment(Vector(9.2, 10.3, 0), Vector(7.7, 10.3, 0)),
    Part.LineSegment(Vector(7.7, 10.3, 0), Vector(7.7, 11.8, 0)),
    Part.LineSegment(Vector(7.7, 11.8, 0), Vector(9.2, 11.8, 0)),
    Part.LineSegment(Vector(9.2, 11.8, 0), Vector(9.2, 10.3, 0)),
], False)
sketch9.addConstraint([
    Sketcher.Constraint("Coincident", 0, 2, 1, 1),
    Sketcher.Constraint("Coincident", 1, 2, 2, 1),
    Sketcher.Constraint("Coincident", 2, 2, 3, 1),
    Sketcher.Constraint("Coincident", 3, 2, 0, 1),
    Sketcher.Constraint("Coincident", 4, 2, 5, 1),
    Sketcher.Constraint("Coincident", 5, 2, 6, 1),
    Sketcher.Constraint("Coincident", 6, 2, 7, 1),
    Sketcher.Constraint("Coincident", 7, 2, 4, 1),
    Sketcher.Constraint("Horizontal", 0),
    Sketcher.Constraint("Vertical", 1),
    Sketcher.Constraint("Horizontal", 2),
    Sketcher.Constraint("Vertical", 3),
    Sketcher.Constraint("Horizontal", 4),
    Sketcher.Constraint("Vertical", 5),
    Sketcher.Constraint("Horizontal", 6),
    Sketcher.Constraint("Vertical", 7),
    Sketcher.Constraint("Equal", 2, 4),
    Sketcher.Constraint("Equal", 6, 1),
    Sketcher.Constraint("Equal", 3, 5),
    Sketcher.Constraint("DistanceX", 0, 2, 0, 1, Q("1.5 mm")),
    Sketcher.Constraint("DistanceX", -1, 1, 0, 2, Q("18.4 mm")),
    Sketcher.Constraint("DistanceX", -1, 1, 4, 2, Q("7.7 mm")),
    Sketcher.Constraint("DistanceY", 4, 2, 1, 2, Q("0.7 mm")),
    Sketcher.Constraint("DistanceY", -1, 1, 0, 2, Q("9.55 mm")),
])
pocket4 = body.newObject("PartDesign::Pocket", "Pocket003")
pocket4.Profile = sketch9
pocket4.Length = 1.7
pocket4.Reversed = True

sketch10 = body.newObject("Sketcher::SketchObject", "Sketch009")
sketch10.AttachmentSupport = (doc.getObject("XY_Plane"), [""])
sketch10.MapMode = "FlatFace"
sketch10.AttachmentOffset = App.Placement(Vector(0, 0, 11.05), App.Rotation())
sketch10.addGeometry([
    Part.LineSegment(Vector(-6.8, 19.9, 0), Vector(-6.8, 18.4, 0)),
    Part.LineSegment(Vector(-6.8, 18.4, 0), Vector(-7.7, 18.4, 0)),
    Part.LineSegment(Vector(-7.7, 18.4, 0), Vector(-7.7, 19.9, 0)),
    Part.LineSegment(Vector(-7.7, 19.9, 0), Vector(-6.8, 19.9, 0)),
], False)
sketch10.addConstraint([
    Sketcher.Constraint("Coincident", 0, 2, 1, 1),
    Sketcher.Constraint("Coincident", 1, 2, 2, 1),
    Sketcher.Constraint("Coincident", 2, 2, 3, 1),
    Sketcher.Constraint("Coincident", 3, 2, 0, 1),
    Sketcher.Constraint("Vertical", 0),
    Sketcher.Constraint("Horizontal", 1),
    Sketcher.Constraint("Vertical", 2),
    Sketcher.Constraint("Horizontal", 3),
    Sketcher.Constraint("DistanceX", 1, 2, 1, 1, Q("0.9 mm")),
    Sketcher.Constraint("DistanceY", 0, 2, 0, 1, Q("1.5 mm")),
    Sketcher.Constraint("DistanceX", 0, 2, -1, 1, Q("6.8 mm")),
    Sketcher.Constraint("DistanceY", -1, 1, 0, 2, Q("18.4 mm")),
])
pocket5 = body.newObject("PartDesign::Pocket", "Pocket004")
pocket5.Profile = sketch10
pocket5.Length = 0.6
pocket5.Reversed = True

sketch11 = body.newObject("Sketcher::SketchObject", "Sketch010")
sketch11.AttachmentSupport = (doc.getObject("XY_Plane"), [""])
sketch11.MapMode = "FlatFace"
sketch11.AttachmentOffset = App.Placement(Vector(0, 0, 11.85), App.Rotation())
sketch11.addGeometry([
    Part.LineSegment(Vector(-6.8, 9.2, 0), Vector(-6.8, 7.7, 0)),
    Part.LineSegment(Vector(-6.8, 7.7, 0), Vector(-7.7, 7.7, 0)),
    Part.LineSegment(Vector(-7.7, 7.7, 0), Vector(-7.7, 9.2, 0)),
    Part.LineSegment(Vector(-7.7, 9.2, 0), Vector(-6.8, 9.2, 0)),
], False)
sketch11.addConstraint([
    Sketcher.Constraint("Coincident", 0, 2, 1, 1),
    Sketcher.Constraint("Coincident", 1, 2, 2, 1),
    Sketcher.Constraint("Coincident", 2, 2, 3, 1),
    Sketcher.Constraint("Coincident", 3, 2, 0, 1),
    Sketcher.Constraint("Vertical", 0),
    Sketcher.Constraint("Horizontal", 1),
    Sketcher.Constraint("Vertical", 2),
    Sketcher.Constraint("Horizontal", 3),
    Sketcher.Constraint("DistanceX", 1, 2, 1, 1, Q("0.9 mm")),
    Sketcher.Constraint("DistanceY", 0, 2, 0, 1, Q("1.5 mm")),
    Sketcher.Constraint("DistanceX", 0, 2, -1, 1, Q("6.8 mm")),
    Sketcher.Constraint("DistanceY", -1, 1, 0, 2, Q("7.7 mm")),
])
pocket6 = body.newObject("PartDesign::Pocket", "Pocket005")
pocket6.Profile = sketch11
pocket6.Length = 0.6
pocket6.Reversed = True

sketch12 = body.newObject("Sketcher::SketchObject", "Sketch011")
sketch12.AttachmentSupport = (doc.getObject("XZ_Plane"), [""])
sketch12.MapMode = "FlatFace"
sketch12.AttachmentOffset = App.Placement(Vector(0, 0, -14.5), App.Rotation())
sketch12.addGeometry([
    Part.LineSegment(Vector(-6, 0, 0), Vector(-8.5, 0, 0)),
    Part.LineSegment(Vector(-8.5, 0, 0), Vector(-8.5, -19.1, 0)),
    Part.LineSegment(Vector(-8.5, -19.1, 0), Vector(-13.5, -19.1, 0)),
    Part.LineSegment(Vector(-13.5, -19.1, 0), Vector(-13.5, -21.1, 0)),
    Part.LineSegment(Vector(-13.5, -21.1, 0), Vector(-6, -21.1, 0)),
    Part.LineSegment(Vector(-6, -21.1, 0), Vector(-6, 0, 0)),
], False)
sketch12.addConstraint([
    Sketcher.Constraint("Coincident", 0, 2, 1, 1),
    Sketcher.Constraint("Coincident", 1, 2, 2, 1),
    Sketcher.Constraint("Coincident", 2, 2, 3, 1),
    Sketcher.Constraint("Coincident", 3, 2, 4, 1),
    Sketcher.Constraint("Coincident", 4, 2, 5, 1),
    Sketcher.Constraint("Coincident", 5, 2, 0, 1),
    Sketcher.Constraint("Horizontal", 0),
    Sketcher.Constraint("Vertical", 1),
    Sketcher.Constraint("Horizontal", 2),
    Sketcher.Constraint("Vertical", 3),
    Sketcher.Constraint("Horizontal", 4),
    Sketcher.Constraint("Vertical", 5),
    Sketcher.Constraint("PointOnObject", 0, 2, -1),
    Sketcher.Constraint("DistanceX", 2, 2, 2, 1, Q("5 mm")),
    Sketcher.Constraint("DistanceY", 3, 2, 3, 1, Q("2 mm")),
    Sketcher.Constraint("DistanceX", 0, 2, 0, 1, Q("2.5 mm")),
    Sketcher.Constraint("DistanceY", 1, 2, 1, 1, Q("19.1 mm")),
    Sketcher.Constraint("DistanceX", 4, 2, -1, 1, Q("6 mm")),
])
pad6 = body.newObject("PartDesign::Pad", "Pad005")
pad6.Profile = sketch12
pad6.Length = 8.55

doc.recompute()
